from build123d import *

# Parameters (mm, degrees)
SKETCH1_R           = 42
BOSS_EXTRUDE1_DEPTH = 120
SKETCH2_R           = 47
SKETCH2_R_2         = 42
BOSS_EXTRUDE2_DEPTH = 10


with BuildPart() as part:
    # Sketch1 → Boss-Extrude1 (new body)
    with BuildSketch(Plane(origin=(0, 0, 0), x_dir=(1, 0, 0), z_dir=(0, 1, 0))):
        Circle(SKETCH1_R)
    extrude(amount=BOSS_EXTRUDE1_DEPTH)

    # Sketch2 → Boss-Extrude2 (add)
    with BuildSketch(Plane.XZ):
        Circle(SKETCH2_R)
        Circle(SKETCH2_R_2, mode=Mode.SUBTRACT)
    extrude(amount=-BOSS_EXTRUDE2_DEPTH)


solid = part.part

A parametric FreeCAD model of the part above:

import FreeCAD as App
import Part
import Sketcher
Q = App.Units.Quantity

doc = App.newDocument("Part")
params = doc.addObject("Spreadsheet::Sheet", "Params")
for row, (alias, value) in enumerate([
    ("sketch1_diameter", "84 mm"),
    ("pad1_length", "120 mm"),
    ("sketch2_diameter", "94 mm"),
    ("sketch2_diameter2", "84 mm"),
    ("pad2_length", "10 mm"),
], start=1):
    params.set(f"A{row}", alias)
    params.set(f"B{row}", "=" + value)
    params.setAlias(f"B{row}", alias)

body = doc.addObject("PartDesign::Body", "Body")

# Sketch on XZ plane
sketch1 = body.newObject("Sketcher::SketchObject", "Sketch")
sketch1.AttachmentSupport = (doc.getObject("XZ_Plane"), [""])
sketch1.MapMode = "FlatFace"
sketch1.addGeometry(Part.Circle(App.Vector(0, 0, 0), App.Vector(0, 0, 1), 42), False)
sketch1.addConstraint(Sketcher.Constraint("Coincident", 0, 3, -1, 1))
sketch1.addConstraint(Sketcher.Constraint("Diameter", 0, Q("84 mm")))
sketch1.setExpression("Constraints[1]", "Params.sketch1_diameter")
pad1 = body.newObject("PartDesign::Pad", "Pad")
pad1.Profile = sketch1
pad1.setExpression("Length", "Params.pad1_length")
pad1.Reversed = True

# Sketch on XZ plane
sketch2 = body.newObject("Sketcher::SketchObject", "Sketch001")
sketch2.AttachmentSupport = (doc.getObject("XZ_Plane"), [""])
sketch2.MapMode = "FlatFace"
sketch2.addGeometry(Part.Circle(App.Vector(0, 0, 0), App.Vector(0, 0, 1), 47), False)
sketch2.addGeometry(Part.Circle(App.Vector(0, 0, 0), App.Vector(0, 0, 1), 42), False)
sketch2.addConstraint(Sketcher.Constraint("Coincident", 0, 3, -1, 1))
sketch2.addConstraint(Sketcher.Constraint("Coincident", 1, 3, -1, 1))
sketch2.addConstraint(Sketcher.Constraint("Diameter", 0, Q("94 mm")))
sketch2.addConstraint(Sketcher.Constraint("Diameter", 1, Q("84 mm")))
sketch2.setExpression("Constraints[2]", "Params.sketch2_diameter")
sketch2.setExpression("Constraints[3]", "Params.sketch2_diameter2")
pad2 = body.newObject("PartDesign::Pad", "Pad001")
pad2.Profile = sketch2
pad2.setExpression("Length", "Params.pad2_length")
pad2.Reversed = True

doc.recompute()
